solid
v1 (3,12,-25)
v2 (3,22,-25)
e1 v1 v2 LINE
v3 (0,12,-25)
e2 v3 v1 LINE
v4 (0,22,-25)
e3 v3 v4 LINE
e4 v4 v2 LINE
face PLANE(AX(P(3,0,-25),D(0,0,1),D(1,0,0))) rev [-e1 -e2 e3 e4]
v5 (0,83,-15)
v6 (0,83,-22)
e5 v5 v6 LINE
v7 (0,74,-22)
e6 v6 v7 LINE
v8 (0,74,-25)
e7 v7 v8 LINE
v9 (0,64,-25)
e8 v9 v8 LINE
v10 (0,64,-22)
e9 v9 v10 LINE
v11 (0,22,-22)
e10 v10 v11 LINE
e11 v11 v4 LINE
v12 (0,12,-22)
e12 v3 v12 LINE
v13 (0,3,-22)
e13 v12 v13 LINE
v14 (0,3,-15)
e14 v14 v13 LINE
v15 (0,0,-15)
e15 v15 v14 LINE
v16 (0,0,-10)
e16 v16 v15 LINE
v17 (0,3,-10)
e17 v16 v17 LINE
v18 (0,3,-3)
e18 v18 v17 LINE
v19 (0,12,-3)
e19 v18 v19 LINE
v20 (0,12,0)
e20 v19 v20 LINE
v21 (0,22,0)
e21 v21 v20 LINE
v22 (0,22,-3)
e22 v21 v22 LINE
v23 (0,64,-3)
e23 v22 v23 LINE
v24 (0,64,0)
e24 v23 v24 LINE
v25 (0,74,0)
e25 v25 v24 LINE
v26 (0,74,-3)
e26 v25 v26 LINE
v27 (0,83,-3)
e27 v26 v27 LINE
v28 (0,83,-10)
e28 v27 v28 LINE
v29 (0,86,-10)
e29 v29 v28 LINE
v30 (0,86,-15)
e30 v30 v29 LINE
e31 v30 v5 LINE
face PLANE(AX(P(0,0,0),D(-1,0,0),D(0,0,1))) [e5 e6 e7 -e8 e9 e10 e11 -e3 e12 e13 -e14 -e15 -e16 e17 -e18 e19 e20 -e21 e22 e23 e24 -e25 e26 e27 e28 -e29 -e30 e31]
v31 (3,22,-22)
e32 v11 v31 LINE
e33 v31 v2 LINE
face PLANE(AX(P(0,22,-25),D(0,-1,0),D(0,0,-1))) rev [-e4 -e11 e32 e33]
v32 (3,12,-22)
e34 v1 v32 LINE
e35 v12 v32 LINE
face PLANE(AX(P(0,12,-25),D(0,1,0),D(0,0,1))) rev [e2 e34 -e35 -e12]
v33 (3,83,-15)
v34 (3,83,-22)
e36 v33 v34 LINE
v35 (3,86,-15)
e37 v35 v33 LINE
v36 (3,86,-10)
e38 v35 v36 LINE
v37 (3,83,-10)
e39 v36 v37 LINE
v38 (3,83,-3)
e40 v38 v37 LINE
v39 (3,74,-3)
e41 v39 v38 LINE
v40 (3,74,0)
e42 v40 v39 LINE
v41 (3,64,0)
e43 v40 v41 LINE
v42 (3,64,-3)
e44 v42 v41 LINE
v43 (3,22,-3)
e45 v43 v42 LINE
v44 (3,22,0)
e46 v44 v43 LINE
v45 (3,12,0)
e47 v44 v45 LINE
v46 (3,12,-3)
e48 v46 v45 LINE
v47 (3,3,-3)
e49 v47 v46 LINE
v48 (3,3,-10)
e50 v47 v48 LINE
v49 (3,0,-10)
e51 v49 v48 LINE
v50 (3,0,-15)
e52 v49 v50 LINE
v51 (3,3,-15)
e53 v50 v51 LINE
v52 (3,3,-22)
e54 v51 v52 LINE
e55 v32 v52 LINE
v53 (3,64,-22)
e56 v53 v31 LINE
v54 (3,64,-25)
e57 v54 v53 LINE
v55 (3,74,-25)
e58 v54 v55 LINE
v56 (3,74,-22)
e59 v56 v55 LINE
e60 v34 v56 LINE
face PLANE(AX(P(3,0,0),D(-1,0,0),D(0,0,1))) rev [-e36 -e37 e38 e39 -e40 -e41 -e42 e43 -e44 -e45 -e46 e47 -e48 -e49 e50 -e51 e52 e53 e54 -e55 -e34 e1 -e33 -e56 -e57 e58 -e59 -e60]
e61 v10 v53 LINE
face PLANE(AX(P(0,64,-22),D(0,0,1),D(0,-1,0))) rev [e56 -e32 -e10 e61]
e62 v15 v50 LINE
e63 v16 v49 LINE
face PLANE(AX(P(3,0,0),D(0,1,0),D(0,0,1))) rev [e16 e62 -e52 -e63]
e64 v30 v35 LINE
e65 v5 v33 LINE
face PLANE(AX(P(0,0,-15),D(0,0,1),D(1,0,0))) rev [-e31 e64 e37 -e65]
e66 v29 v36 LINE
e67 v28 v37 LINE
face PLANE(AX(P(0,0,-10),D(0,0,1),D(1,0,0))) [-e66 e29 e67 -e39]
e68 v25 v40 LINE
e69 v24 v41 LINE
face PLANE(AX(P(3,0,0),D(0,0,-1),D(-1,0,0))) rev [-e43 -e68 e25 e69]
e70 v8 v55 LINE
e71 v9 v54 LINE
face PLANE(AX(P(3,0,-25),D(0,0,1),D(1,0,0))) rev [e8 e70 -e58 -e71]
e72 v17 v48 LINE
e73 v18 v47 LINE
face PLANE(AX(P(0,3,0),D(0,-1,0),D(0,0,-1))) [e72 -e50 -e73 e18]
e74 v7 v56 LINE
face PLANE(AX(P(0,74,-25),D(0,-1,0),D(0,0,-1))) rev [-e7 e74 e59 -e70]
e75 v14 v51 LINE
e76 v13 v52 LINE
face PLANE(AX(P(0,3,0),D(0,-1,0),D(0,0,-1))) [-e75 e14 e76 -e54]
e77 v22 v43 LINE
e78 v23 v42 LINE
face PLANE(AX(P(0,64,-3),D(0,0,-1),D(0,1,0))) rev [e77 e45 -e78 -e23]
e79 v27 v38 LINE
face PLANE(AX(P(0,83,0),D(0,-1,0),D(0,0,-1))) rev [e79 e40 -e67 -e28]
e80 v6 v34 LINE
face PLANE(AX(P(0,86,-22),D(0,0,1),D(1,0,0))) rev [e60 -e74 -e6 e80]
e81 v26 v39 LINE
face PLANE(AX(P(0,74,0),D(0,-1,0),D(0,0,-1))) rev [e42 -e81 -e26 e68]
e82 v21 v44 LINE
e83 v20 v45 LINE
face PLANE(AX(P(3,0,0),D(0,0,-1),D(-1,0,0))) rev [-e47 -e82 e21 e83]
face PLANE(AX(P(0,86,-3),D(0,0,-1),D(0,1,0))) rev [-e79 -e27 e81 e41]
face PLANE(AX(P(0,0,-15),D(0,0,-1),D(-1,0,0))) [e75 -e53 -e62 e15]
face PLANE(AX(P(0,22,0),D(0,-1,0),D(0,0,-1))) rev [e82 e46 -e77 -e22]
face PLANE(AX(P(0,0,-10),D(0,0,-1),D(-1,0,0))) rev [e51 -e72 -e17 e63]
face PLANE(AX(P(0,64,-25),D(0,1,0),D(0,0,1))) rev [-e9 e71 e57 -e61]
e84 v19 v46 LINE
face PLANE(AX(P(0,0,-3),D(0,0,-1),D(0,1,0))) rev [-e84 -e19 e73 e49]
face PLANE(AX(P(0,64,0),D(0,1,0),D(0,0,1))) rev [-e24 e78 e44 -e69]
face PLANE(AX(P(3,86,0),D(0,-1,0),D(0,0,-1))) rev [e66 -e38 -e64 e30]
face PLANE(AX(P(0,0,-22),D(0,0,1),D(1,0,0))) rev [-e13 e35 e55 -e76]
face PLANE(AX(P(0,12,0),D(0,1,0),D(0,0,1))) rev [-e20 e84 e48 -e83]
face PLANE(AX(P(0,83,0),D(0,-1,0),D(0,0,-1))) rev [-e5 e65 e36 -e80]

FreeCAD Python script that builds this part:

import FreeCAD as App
import Part
import Sketcher
from FreeCAD import Vector

doc = App.newDocument("Part")
body = doc.addObject("PartDesign::Body", "Body")

sketch1 = body.newObject("Sketcher::SketchObject", "Sketch")
sketch1.AttachmentSupport = (doc.getObject("YZ_Plane"), [""])
sketch1.MapMode = "FlatFace"
sketch1.addGeometry([
    Part.LineSegment(Vector(86, 0, 0), Vector(0, 0, 0)),
    Part.LineSegment(Vector(0, 0, 0), Vector(0, -25, 0)),
    Part.LineSegment(Vector(0, -25, 0), Vector(86, -25, 0)),
    Part.LineSegment(Vector(86, -25, 0), Vector(86, 0, 0)),
], False)
sketch1.addConstraint([
    Sketcher.Constraint("Coincident", 0, 2, 1, 1),
    Sketcher.Constraint("Coincident", 1, 2, 2, 1),
    Sketcher.Constraint("Coincident", 2, 2, 3, 1),
    Sketcher.Constraint("Coincident", 3, 2, 0, 1),
    Sketcher.Constraint("Horizontal", 0),
    Sketcher.Constraint("Vertical", 1),
    Sketcher.Constraint("Horizontal", 2),
    Sketcher.Constraint("Vertical", 3),
    Sketcher.Constraint("Coincident", 0, 2, -1, 1),
    Sketcher.Constraint("DistanceX", 0, 2, 0, 1, 86.0),
    Sketcher.Constraint("DistanceY", 1, 2, 1, 1, 25.0),
])
pad1 = body.newObject("PartDesign::Pad", "Pad")
pad1.Profile = sketch1
pad1.Length = 3

sketch2 = body.newObject("Sketcher::SketchObject", "Sketch001")
sketch2.AttachmentSupport = (doc.getObject("YZ_Plane"), [""])
sketch2.MapMode = "FlatFace"
sketch2.AttachmentOffset = App.Placement(Vector(0, 0, 3), App.Rotation())
sketch2.addGeometry([
    Part.LineSegment(Vector(86, 0, 0), Vector(74, 0, 0)),
    Part.LineSegment(Vector(74, 0, 0), Vector(74, -3, 0)),
    Part.LineSegment(Vector(74, -3, 0), Vector(86, -3, 0)),
    Part.LineSegment(Vector(86, -3, 0), Vector(86, 0, 0)),
    Part.LineSegment(Vector(86, -22, 0), Vector(74, -22, 0)),
    Part.LineSegment(Vector(74, -22, 0), Vector(74, -25, 0)),
    Part.LineSegment(Vector(74, -25, 0), Vector(86, -25, 0)),
    Part.LineSegment(Vector(86, -25, 0), Vector(86, -22, 0)),
    Part.LineSegment(Vector(12, -22, 0), Vector(0, -22, 0)),
    Part.LineSegment(Vector(0, -22, 0), Vector(0, -25, 0)),
    Part.LineSegment(Vector(0, -25, 0), Vector(12, -25, 0)),
    Part.LineSegment(Vector(12, -25, 0), Vector(12, -22, 0)),
    Part.LineSegment(Vector(12, 0, 0), Vector(0, 0, 0)),
    Part.LineSegment(Vector(0, 0, 0), Vector(0, -3, 0)),
    Part.LineSegment(Vector(0, -3, 0), Vector(12, -3, 0)),
    Part.LineSegment(Vector(12, -3, 0), Vector(12, 0, 0)),
    Part.LineSegment(Vector(64, 0, 0), Vector(22, 0, 0)),
    Part.LineSegment(Vector(22, 0, 0), Vector(22, -3, 0)),
    Part.LineSegment(Vector(22, -3, 0), Vector(64, -3, 0)),
    Part.LineSegment(Vector(64, -3, 0), Vector(64, 0, 0)),
    Part.LineSegment(Vector(64, -22, 0), Vector(22, -22, 0)),
    Part.LineSegment(Vector(22, -22, 0), Vector(22, -25, 0)),
    Part.LineSegment(Vector(22, -25, 0), Vector(64, -25, 0)),
    Part.LineSegment(Vector(64, -25, 0), Vector(64, -22, 0)),
], False)
sketch2.addConstraint([
    Sketcher.Constraint("Coincident", 0, 2, 1, 1),
    Sketcher.Constraint("Coincident", 1, 2, 2, 1),
    Sketcher.Constraint("Coincident", 2, 2, 3, 1),
    Sketcher.Constraint("Coincident", 3, 2, 0, 1),
    Sketcher.Constraint("Coincident", 4, 2, 5, 1),
    Sketcher.Constraint("Coincident", 5, 2, 6, 1),
    Sketcher.Constraint("Coincident", 6, 2, 7, 1),
    Sketcher.Constraint("Coincident", 7, 2, 4, 1),
    Sketcher.Constraint("Coincident", 8, 2, 9, 1),
    Sketcher.Constraint("Coincident", 9, 2, 10, 1),
    Sketcher.Constraint("Coincident", 10, 2, 11, 1),
    Sketcher.Constraint("Coincident", 11, 2, 8, 1),
    Sketcher.Constraint("Coincident", 12, 2, 13, 1),
    Sketcher.Constraint("Coincident", 13, 2, 14, 1),
    Sketcher.Constraint("Coincident", 14, 2, 15, 1),
    Sketcher.Constraint("Coincident", 15, 2, 12, 1),
    Sketcher.Constraint("Coincident", 16, 2, 17, 1),
    Sketcher.Constraint("Coincident", 17, 2, 18, 1),
    Sketcher.Constraint("Coincident", 18, 2, 19, 1),
    Sketcher.Constraint("Coincident", 19, 2, 16, 1),
    Sketcher.Constraint("Coincident", 20, 2, 21, 1),
    Sketcher.Constraint("Coincident", 21, 2, 22, 1),
    Sketcher.Constraint("Coincident", 22, 2, 23, 1),
    Sketcher.Constraint("Coincident", 23, 2, 20, 1),
    Sketcher.Constraint("Horizontal", 0),
    Sketcher.Constraint("Vertical", 1),
    Sketcher.Constraint("Horizontal", 2),
    Sketcher.Constraint("Vertical", 3),
    Sketcher.Constraint("Horizontal", 4),
    Sketcher.Constraint("Vertical", 5),
    Sketcher.Constraint("Horizontal", 6),
    Sketcher.Constraint("Vertical", 7),
    Sketcher.Constraint("Horizontal", 8),
    Sketcher.Constraint("Vertical", 9),
    Sketcher.Constraint("Horizontal", 10),
    Sketcher.Constraint("Vertical", 11),
    Sketcher.Constraint("Horizontal", 12),
    Sketcher.Constraint("Vertical", 13),
    Sketcher.Constraint("Horizontal", 14),
    Sketcher.Constraint("Vertical", 15),
    Sketcher.Constraint("Horizontal", 16),
    Sketcher.Constraint("Vertical", 17),
    Sketcher.Constraint("Horizontal", 18),
    Sketcher.Constraint("Vertical", 19),
    Sketcher.Constraint("Horizontal", 20),
    Sketcher.Constraint("Vertical", 21),
    Sketcher.Constraint("Horizontal", 22),
    Sketcher.Constraint("Vertical", 23),
    Sketcher.Constraint("Coincident", 12, 2, -1, 1),
    Sketcher.Constraint("PointOnObject", 0, 2, -1),
    Sketcher.Constraint("PointOnObject", 8, 2, -2),
    Sketcher.Constraint("PointOnObject", 16, 2, -1),
    Sketcher.Constraint("Horizontal", 7, 2, 8, 2),
    Sketcher.Constraint("Horizontal", 6, 2, 9, 2),
    Sketcher.Constraint("Horizontal", 2, 2, 13, 2),
    Sketcher.Constraint("Horizontal", 14, 2, 17, 2),
    Sketcher.Constraint("Horizontal", 11, 2, 20, 2),
    Sketcher.Constraint("Horizontal", 10, 2, 21, 2),
    Sketcher.Constraint("Vertical", 1, 2, 4, 2),
    Sketcher.Constraint("Vertical", 3, 2, 6, 2),
    Sketcher.Constraint("Vertical", 11, 2, 14, 2),
    Sketcher.Constraint("Vertical", 17, 2, 20, 2),
    Sketcher.Constraint("Vertical", 19, 2, 22, 2),
    Sketcher.Constraint("Equal", 6, 8),
    Sketcher.Constraint("Equal", 3, 5),
    Sketcher.Constraint("DistanceX", 0, 2, 0, 1, 12.0),
    Sketcher.Constraint("DistanceX", 16, 2, 16, 1, 42.0),
    Sketcher.Constraint("DistanceY", 1, 2, 1, 1, 3.0),
    Sketcher.Constraint("DistanceX", -1, 1, 0, 2, 74.0),
    Sketcher.Constraint("DistanceY", 4, 2, -1, 1, 22.0),
    Sketcher.Constraint("DistanceX", -1, 1, 16, 2, 22.0),
])
pocket1 = body.newObject("PartDesign::Pocket", "Pocket")
pocket1.Profile = sketch2
pocket1.Type = "ThroughAll"

sketch3 = body.newObject("Sketcher::SketchObject", "Sketch002")
sketch3.AttachmentSupport = (doc.getObject("YZ_Plane"), [""])
sketch3.MapMode = "FlatFace"
sketch3.AttachmentOffset = App.Placement(Vector(0, 0, 3), App.Rotation())
sketch3.addGeometry([
    Part.LineSegment(Vector(86, -3, 0), Vector(83, -3, 0)),
    Part.LineSegment(Vector(83, -3, 0), Vector(83, -10, 0)),
    Part.LineSegment(Vector(83, -10, 0), Vector(86, -10, 0)),
    Part.LineSegment(Vector(86, -10, 0), Vector(86, -3, 0)),
    Part.LineSegment(Vector(86, -15, 0), Vector(83, -15, 0)),
    Part.LineSegment(Vector(83, -15, 0), Vector(83, -22, 0)),
    Part.LineSegment(Vector(83, -22, 0), Vector(86, -22, 0)),
    Part.LineSegment(Vector(86, -22, 0), Vector(86, -15, 0)),
    Part.LineSegment(Vector(3, -3, 0), Vector(0, -3, 0)),
    Part.LineSegment(Vector(0, -3, 0), Vector(0, -10, 0)),
    Part.LineSegment(Vector(0, -10, 0), Vector(3, -10, 0)),
    Part.LineSegment(Vector(3, -10, 0), Vector(3, -3, 0)),
    Part.LineSegment(Vector(3, -15, 0), Vector(0, -15, 0)),
    Part.LineSegment(Vector(0, -15, 0), Vector(0, -22, 0)),
    Part.LineSegment(Vector(0, -22, 0), Vector(3, -22, 0)),
    Part.LineSegment(Vector(3, -22, 0), Vector(3, -15, 0)),
], False)
sketch3.addConstraint([
    Sketcher.Constraint("Coincident", 0, 2, 1, 1),
    Sketcher.Constraint("Coincident", 1, 2, 2, 1),
    Sketcher.Constraint("Coincident", 2, 2, 3, 1),
    Sketcher.Constraint("Coincident", 3, 2, 0, 1),
    Sketcher.Constraint("Coincident", 4, 2, 5, 1),
    Sketcher.Constraint("Coincident", 5, 2, 6, 1),
    Sketcher.Constraint("Coincident", 6, 2, 7, 1),
    Sketcher.Constraint("Coincident", 7, 2, 4, 1),
    Sketcher.Constraint("Coincident", 8, 2, 9, 1),
    Sketcher.Constraint("Coincident", 9, 2, 10, 1),
    Sketcher.Constraint("Coincident", 10, 2, 11, 1),
    Sketcher.Constraint("Coincident", 11, 2, 8, 1),
    Sketcher.Constraint("Coincident", 12, 2, 13, 1),
    Sketcher.Constraint("Coincident", 13, 2, 14, 1),
    Sketcher.Constraint("Coincident", 14, 2, 15, 1),
    Sketcher.Constraint("Coincident", 15, 2, 12, 1),
    Sketcher.Constraint("Horizontal", 0),
    Sketcher.Constraint("Vertical", 1),
    Sketcher.Constraint("Horizontal", 2),
    Sketcher.Constraint("Vertical", 3),
    Sketcher.Constraint("Horizontal", 4),
    Sketcher.Constraint("Vertical", 5),
    Sketcher.Constraint("Horizontal", 6),
    Sketcher.Constraint("Vertical", 7),
    Sketcher.Constraint("Horizontal", 8),
    Sketcher.Constraint("Vertical", 9),
    Sketcher.Constraint("Horizontal", 10),
    Sketcher.Constraint("Vertical", 11),
    Sketcher.Constraint("Horizontal", 12),
    Sketcher.Constraint("Vertical", 13),
    Sketcher.Constraint("Horizontal", 14),
    Sketcher.Constraint("Vertical", 15),
    Sketcher.Constraint("PointOnObject", 8, 2, -2),
    Sketcher.Constraint("PointOnObject", 12, 2, -2),
    Sketcher.Constraint("Horizontal", 3, 2, 8, 2),
    Sketcher.Constraint("Horizontal", 2, 2, 9, 2),
    Sketcher.Constraint("Horizontal", 7, 2, 12, 2),
    Sketcher.Constraint("Horizontal", 6, 2, 13, 2),
    Sketcher.Constraint("Vertical", 1, 2, 4, 2),
    Sketcher.Constraint("Vertical", 3, 2, 6, 2),
    Sketcher.Constraint("Vertical", 11, 2, 14, 2),
    Sketcher.Constraint("Equal", 6, 8),
    Sketcher.Constraint("Equal", 3, 5),
    Sketcher.Constraint("DistanceX", 0, 2, 0, 1, 3.0),
    Sketcher.Constraint("DistanceY", 1, 2, 1, 1, 7.0),
    Sketcher.Constraint("DistanceX", -1, 1, 0, 2, 83.0),
    Sketcher.Constraint("DistanceY", 0, 2, -1, 1, 3.0),
    Sketcher.Constraint("DistanceY", 4, 2, -1, 1, 15.0),
])
pocket2 = body.newObject("PartDesign::Pocket", "Pocket001")
pocket2.Profile = sketch3
pocket2.Type = "ThroughAll"

doc.recompute()
